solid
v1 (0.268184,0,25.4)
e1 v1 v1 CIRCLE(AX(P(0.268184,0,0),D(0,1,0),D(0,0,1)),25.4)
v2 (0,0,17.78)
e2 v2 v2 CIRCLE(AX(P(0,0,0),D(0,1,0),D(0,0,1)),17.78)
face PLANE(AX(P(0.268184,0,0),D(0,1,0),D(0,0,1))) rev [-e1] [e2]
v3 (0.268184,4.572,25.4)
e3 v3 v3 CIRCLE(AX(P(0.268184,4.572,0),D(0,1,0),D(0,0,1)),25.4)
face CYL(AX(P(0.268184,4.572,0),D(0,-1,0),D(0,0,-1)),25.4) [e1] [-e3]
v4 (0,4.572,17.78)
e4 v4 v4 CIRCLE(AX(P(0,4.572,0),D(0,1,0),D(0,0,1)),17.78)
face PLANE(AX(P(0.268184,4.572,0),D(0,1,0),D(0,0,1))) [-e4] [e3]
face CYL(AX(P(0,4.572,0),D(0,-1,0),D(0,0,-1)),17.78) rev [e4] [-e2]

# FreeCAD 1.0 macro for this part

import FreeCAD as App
import Part
import Sketcher

V = App.Vector
Q = App.Units.Quantity

doc = App.newDocument("Part")
params = doc.addObject("Spreadsheet::Sheet", "Params")
for row, (alias, value) in enumerate([
    ("sketch1_diameter", "2 in"),
    ("sketch1_diameter2", "1.4 in"),
    ("pad1_length", "0.18 in"),
], start=1):
    params.set(f"A{row}", alias)
    params.set(f"B{row}", "=" + value)
    params.setAlias(f"B{row}", alias)

body = doc.addObject("PartDesign::Body", "Body")

# Sketch on XZ plane
sketch1 = body.newObject("Sketcher::SketchObject", "Sketch")
sketch1.AttachmentSupport = (doc.getObject("XZ_Plane"), [""])
sketch1.MapMode = "FlatFace"
sketch1.addGeometry([
    Part.Circle(V(0, 0, 0), V(0, 0, 1), 25),
    Part.Circle(V(0, 0, 0), V(0, 0, 1), 18),
], False)
sketch1.addConstraint([
    Sketcher.Constraint("Coincident", 1, 3, -1, 1),
    Sketcher.Constraint("PointOnObject", 0, 3, -1),
    Sketcher.Constraint("Diameter", 0, Q("2 in")),
    Sketcher.Constraint("Diameter", 1, Q("1.4 in")),
    Sketcher.Constraint("DistanceX", -1, 1, 0, 3, 0.268184),
])
sketch1.setExpression("Constraints[2]", "Params.sketch1_diameter")
sketch1.setExpression("Constraints[3]", "Params.sketch1_diameter2")
pad1 = body.newObject("PartDesign::Pad", "Pad")
pad1.Profile = sketch1
pad1.setExpression("Length", "Params.pad1_length")
pad1.Reversed = True

doc.recompute()
